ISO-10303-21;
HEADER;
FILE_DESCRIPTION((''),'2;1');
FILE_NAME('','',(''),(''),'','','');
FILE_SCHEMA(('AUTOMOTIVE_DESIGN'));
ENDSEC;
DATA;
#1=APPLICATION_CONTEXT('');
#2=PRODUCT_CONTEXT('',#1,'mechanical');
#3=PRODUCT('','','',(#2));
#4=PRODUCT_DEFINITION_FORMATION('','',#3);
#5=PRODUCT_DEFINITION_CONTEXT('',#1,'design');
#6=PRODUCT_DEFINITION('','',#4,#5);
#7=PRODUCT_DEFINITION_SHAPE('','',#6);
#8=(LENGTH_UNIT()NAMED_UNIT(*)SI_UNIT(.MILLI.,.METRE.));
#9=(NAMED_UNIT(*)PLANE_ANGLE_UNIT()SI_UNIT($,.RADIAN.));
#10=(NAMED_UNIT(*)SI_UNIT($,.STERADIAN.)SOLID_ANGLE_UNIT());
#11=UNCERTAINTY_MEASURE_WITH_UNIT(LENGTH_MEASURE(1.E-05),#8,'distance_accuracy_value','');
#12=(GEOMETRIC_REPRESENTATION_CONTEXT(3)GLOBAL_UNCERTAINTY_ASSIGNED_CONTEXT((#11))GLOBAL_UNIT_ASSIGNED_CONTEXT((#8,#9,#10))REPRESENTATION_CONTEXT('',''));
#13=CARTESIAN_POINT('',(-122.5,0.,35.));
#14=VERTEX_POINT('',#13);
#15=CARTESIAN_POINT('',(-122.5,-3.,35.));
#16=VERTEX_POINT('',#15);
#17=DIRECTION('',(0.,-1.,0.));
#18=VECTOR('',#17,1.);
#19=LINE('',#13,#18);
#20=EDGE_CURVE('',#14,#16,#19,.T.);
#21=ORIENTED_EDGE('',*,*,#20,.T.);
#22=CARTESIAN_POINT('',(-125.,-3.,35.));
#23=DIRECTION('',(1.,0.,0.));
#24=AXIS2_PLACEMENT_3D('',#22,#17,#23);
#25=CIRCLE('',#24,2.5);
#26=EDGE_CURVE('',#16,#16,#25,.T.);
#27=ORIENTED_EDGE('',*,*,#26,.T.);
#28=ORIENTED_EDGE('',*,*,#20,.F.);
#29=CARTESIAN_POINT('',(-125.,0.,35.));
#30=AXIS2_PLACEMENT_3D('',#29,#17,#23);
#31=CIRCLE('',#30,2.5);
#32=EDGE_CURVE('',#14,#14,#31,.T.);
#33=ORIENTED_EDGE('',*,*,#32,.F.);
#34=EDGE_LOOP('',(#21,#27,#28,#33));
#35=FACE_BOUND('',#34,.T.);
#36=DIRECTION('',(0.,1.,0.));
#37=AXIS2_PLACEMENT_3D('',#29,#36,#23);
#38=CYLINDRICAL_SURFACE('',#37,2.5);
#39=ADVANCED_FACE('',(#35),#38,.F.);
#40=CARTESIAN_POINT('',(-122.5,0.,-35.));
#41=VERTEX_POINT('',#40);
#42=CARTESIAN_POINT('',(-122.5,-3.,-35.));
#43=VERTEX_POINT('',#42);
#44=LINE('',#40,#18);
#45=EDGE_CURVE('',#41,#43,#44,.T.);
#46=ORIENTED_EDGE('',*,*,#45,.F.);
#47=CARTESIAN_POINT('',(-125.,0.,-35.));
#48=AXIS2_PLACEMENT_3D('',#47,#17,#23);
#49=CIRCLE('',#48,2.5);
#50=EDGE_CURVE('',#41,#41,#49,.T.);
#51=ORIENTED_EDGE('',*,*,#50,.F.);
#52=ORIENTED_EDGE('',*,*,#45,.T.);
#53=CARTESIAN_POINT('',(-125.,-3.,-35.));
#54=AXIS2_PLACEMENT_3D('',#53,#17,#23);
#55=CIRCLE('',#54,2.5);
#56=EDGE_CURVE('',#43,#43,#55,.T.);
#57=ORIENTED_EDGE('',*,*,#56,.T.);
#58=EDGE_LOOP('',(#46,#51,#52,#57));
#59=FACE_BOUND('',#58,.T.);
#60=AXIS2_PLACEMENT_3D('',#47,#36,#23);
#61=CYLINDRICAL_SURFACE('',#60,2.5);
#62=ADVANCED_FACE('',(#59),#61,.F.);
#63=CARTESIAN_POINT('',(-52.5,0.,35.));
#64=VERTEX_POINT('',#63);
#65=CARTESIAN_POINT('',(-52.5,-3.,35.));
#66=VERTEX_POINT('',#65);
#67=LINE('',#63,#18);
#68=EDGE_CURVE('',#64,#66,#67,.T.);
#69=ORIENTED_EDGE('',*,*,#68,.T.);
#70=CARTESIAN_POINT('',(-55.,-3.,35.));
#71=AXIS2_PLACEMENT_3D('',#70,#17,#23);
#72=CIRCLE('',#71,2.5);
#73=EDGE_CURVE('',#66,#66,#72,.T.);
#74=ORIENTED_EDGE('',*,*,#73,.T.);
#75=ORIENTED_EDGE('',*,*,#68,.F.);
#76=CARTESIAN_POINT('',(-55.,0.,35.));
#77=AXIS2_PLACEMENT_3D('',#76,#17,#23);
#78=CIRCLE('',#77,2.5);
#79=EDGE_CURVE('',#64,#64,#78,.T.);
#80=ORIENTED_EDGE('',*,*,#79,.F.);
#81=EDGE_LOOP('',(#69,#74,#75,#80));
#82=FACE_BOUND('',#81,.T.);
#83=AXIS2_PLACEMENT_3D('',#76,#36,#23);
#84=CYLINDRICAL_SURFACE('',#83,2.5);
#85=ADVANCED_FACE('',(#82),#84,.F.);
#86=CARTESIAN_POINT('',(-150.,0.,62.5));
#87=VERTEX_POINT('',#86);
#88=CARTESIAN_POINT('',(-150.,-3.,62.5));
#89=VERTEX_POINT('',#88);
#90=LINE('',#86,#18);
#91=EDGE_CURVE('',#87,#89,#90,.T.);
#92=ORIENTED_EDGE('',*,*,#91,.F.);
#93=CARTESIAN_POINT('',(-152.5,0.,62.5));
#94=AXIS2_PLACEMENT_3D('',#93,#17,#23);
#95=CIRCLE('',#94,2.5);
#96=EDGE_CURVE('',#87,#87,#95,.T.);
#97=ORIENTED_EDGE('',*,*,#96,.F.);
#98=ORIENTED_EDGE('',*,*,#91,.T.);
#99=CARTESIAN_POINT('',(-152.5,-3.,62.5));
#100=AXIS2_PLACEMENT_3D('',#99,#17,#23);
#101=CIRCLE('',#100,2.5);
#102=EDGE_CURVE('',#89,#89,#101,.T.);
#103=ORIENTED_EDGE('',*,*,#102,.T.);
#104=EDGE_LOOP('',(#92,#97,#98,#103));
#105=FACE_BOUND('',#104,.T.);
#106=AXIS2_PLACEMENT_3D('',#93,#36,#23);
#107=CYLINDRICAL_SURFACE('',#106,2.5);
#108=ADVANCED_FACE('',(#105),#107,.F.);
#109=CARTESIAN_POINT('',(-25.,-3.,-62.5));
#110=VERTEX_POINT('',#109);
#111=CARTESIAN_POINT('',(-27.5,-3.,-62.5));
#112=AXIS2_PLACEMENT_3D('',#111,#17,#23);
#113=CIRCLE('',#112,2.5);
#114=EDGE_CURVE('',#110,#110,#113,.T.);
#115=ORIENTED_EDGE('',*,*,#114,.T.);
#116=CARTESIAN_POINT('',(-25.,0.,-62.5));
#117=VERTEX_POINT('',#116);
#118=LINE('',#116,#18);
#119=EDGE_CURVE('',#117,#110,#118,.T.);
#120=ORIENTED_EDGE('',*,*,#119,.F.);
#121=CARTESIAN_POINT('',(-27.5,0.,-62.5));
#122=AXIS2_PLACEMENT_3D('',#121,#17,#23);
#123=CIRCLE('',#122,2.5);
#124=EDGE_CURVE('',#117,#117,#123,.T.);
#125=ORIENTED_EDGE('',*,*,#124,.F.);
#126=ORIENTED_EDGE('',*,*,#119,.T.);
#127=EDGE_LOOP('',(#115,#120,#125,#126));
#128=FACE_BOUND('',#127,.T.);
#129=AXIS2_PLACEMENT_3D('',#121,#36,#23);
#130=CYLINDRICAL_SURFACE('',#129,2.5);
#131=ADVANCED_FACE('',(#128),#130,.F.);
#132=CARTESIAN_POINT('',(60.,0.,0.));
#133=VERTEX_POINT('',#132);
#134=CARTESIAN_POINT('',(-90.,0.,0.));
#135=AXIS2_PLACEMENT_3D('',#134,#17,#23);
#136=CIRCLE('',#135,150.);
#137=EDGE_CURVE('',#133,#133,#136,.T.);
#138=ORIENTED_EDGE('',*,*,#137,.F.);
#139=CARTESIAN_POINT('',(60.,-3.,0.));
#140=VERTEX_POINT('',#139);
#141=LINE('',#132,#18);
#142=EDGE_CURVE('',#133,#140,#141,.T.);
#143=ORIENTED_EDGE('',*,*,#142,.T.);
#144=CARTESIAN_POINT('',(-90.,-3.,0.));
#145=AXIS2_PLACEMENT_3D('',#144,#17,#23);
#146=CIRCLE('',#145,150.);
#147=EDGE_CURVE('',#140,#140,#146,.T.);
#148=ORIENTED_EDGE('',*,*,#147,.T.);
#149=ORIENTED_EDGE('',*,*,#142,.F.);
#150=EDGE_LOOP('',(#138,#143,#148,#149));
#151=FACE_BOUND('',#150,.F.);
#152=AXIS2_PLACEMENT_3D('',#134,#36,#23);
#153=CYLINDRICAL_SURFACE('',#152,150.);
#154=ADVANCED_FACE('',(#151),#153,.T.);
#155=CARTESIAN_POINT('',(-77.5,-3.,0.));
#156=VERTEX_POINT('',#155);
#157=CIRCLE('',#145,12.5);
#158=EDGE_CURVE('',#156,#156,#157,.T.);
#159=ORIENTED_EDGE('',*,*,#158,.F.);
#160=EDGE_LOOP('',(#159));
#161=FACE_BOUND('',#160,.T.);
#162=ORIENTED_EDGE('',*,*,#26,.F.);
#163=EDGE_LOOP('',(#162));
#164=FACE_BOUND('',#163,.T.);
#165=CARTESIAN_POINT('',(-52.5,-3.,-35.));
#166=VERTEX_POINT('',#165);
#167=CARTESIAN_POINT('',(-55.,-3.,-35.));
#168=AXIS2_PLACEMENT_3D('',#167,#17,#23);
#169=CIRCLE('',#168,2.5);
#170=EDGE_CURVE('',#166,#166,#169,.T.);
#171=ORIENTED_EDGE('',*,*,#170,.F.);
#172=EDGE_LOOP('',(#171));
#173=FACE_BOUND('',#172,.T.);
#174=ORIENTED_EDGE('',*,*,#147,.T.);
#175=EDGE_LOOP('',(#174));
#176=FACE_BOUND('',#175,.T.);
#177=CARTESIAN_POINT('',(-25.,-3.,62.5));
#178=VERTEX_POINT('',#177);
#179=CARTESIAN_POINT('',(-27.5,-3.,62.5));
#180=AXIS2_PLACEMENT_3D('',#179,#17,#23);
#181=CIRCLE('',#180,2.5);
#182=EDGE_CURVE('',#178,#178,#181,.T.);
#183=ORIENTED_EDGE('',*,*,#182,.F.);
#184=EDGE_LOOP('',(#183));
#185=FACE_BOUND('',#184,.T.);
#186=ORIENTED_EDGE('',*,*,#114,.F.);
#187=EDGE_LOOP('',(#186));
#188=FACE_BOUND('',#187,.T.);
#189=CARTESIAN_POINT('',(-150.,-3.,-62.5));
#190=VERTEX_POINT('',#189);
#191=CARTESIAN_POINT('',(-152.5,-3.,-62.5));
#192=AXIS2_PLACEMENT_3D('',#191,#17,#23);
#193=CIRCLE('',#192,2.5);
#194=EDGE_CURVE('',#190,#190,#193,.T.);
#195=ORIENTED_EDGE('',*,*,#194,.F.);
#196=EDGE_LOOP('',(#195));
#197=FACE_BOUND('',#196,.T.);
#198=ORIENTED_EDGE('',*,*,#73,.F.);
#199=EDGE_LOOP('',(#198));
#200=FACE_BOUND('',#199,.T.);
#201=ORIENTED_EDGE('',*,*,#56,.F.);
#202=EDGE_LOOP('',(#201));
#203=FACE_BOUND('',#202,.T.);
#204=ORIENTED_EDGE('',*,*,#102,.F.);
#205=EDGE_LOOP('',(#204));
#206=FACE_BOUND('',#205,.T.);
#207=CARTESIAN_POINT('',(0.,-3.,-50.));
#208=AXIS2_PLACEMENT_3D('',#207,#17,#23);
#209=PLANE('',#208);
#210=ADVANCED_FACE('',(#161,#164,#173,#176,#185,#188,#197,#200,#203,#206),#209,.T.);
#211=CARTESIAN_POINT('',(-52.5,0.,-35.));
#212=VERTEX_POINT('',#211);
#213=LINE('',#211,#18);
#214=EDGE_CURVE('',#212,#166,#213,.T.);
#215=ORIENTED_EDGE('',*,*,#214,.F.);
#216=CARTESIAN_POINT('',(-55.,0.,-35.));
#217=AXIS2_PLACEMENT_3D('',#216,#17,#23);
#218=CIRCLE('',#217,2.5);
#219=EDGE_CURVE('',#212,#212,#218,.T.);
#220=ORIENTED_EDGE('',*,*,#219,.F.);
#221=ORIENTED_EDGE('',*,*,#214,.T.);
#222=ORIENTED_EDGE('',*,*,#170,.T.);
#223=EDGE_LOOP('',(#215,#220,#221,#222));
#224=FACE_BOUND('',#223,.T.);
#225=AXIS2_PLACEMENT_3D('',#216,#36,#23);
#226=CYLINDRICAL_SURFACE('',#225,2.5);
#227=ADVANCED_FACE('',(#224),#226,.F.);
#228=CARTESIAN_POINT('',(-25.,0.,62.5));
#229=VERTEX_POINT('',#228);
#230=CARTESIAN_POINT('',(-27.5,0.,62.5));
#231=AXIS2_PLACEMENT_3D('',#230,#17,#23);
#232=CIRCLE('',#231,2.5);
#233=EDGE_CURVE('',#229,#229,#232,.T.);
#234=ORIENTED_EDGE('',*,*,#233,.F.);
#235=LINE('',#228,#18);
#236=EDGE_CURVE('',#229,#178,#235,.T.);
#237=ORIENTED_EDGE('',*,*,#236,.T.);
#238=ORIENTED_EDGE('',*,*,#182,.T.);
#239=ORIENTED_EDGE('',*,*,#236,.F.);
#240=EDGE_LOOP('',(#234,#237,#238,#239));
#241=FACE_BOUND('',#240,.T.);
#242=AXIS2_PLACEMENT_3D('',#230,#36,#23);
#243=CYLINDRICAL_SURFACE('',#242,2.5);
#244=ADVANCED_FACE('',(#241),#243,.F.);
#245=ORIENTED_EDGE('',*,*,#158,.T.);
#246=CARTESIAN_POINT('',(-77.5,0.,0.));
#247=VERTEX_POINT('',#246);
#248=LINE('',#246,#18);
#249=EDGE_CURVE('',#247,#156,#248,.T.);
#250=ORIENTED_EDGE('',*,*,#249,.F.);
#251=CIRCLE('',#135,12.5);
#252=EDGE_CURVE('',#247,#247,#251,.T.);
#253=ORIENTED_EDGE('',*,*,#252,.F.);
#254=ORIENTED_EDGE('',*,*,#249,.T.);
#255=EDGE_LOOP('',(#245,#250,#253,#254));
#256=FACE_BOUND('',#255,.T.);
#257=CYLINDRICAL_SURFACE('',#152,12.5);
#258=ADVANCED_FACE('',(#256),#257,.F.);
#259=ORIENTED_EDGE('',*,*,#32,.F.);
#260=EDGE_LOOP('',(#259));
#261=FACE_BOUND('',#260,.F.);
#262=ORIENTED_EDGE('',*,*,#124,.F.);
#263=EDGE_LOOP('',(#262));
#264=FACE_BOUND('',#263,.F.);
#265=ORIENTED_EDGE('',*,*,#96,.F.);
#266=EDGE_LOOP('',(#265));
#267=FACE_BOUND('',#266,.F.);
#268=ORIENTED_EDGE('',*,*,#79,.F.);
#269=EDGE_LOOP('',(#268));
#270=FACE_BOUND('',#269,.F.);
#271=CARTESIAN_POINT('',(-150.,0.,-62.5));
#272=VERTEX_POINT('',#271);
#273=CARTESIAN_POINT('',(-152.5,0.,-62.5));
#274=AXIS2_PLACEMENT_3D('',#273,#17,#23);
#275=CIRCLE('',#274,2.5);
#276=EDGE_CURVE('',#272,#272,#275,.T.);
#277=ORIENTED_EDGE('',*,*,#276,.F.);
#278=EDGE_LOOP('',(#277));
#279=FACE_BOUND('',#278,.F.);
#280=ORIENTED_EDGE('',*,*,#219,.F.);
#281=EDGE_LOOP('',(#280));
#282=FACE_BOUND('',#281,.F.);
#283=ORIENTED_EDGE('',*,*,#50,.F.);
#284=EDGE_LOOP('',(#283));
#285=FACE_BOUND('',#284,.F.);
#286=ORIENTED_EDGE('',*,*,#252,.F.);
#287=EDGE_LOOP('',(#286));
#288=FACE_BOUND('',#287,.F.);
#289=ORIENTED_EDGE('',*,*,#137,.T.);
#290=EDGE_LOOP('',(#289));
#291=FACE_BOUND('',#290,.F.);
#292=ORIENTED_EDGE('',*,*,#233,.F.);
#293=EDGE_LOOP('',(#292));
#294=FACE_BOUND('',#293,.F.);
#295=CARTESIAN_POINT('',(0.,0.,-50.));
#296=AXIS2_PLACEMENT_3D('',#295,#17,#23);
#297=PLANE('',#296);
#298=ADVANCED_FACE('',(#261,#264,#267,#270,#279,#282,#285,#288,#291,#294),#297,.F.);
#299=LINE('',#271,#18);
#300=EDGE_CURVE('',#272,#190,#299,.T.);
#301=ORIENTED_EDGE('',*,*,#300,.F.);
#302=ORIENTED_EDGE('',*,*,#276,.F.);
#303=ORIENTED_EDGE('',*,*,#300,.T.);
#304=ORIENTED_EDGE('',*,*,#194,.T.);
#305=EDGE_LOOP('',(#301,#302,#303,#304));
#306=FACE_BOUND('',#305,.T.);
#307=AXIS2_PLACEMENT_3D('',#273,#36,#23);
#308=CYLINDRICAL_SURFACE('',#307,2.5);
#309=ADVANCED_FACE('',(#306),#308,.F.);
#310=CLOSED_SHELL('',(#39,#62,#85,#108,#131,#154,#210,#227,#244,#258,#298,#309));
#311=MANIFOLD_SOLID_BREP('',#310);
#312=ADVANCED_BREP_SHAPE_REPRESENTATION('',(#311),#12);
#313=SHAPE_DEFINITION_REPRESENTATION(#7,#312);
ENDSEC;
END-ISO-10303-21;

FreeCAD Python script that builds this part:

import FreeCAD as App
import Part
import Sketcher

V = App.Vector
Q = App.Units.Quantity

doc = App.newDocument("Part")
body = doc.addObject("PartDesign::Body", "Body")

# Sketch on XZ plane
sketch1 = body.newObject("Sketcher::SketchObject", "Sketch")
sketch1.AttachmentSupport = (doc.getObject("XZ_Plane"), [""])
sketch1.MapMode = "FlatFace"
sketch1.addGeometry(Part.Circle(V(-90, 0, 0), V(0, 0, 1), 150), False)
sketch1.addGeometry(Part.Circle(V(-152.5, -62.5, 0), V(0, 0, 1), 2.5), False)
sketch1.addGeometry(Part.Circle(V(-125, -35, 0), V(0, 0, 1), 2.5), False)
sketch1.addGeometry(Part.Circle(V(-27.5, -62.5, 0), V(0, 0, 1), 2.5), False)
sketch1.addGeometry(Part.Circle(V(-55, -35, 0), V(0, 0, 1), 2.5), False)
sketch1.addGeometry(Part.Circle(V(-125, 35, 0), V(0, 0, 1), 2.5), False)
sketch1.addGeometry(Part.Circle(V(-152.5, 62.5, 0), V(0, 0, 1), 2.5), False)
sketch1.addGeometry(Part.Circle(V(-90, 0, 0), V(0, 0, 1), 12.5), False)
sketch1.addGeometry(Part.Circle(V(-55, 35, 0), V(0, 0, 1), 2.5), False)
sketch1.addGeometry(Part.Circle(V(-27.5, 62.5, 0), V(0, 0, 1), 2.5), False)
sketch1.addConstraint(Sketcher.Constraint("Coincident", 7, 3, 0, 3))
sketch1.addConstraint(Sketcher.Constraint("Equal", 1, 2))
sketch1.addConstraint(Sketcher.Constraint("Equal", 2, 3))
sketch1.addConstraint(Sketcher.Constraint("Equal", 3, 4))
sketch1.addConstraint(Sketcher.Constraint("Equal", 4, 5))
sketch1.addConstraint(Sketcher.Constraint("Equal", 5, 6))
sketch1.addConstraint(Sketcher.Constraint("Equal", 6, 8))
sketch1.addConstraint(Sketcher.Constraint("Equal", 8, 9))
sketch1.addConstraint(Sketcher.Constraint("Symmetric", 2, 3, 5, 3, -1))
sketch1.addConstraint(Sketcher.Constraint("Symmetric", 1, 3, 6, 3, -1))
sketch1.addConstraint(Sketcher.Constraint("Symmetric", 4, 3, 8, 3, -1))
sketch1.addConstraint(Sketcher.Constraint("Symmetric", 3, 3, 9, 3, -1))
sketch1.addConstraint(Sketcher.Constraint("PointOnObject", 0, 3, -1))
sketch1.addConstraint(Sketcher.Constraint("Horizontal", 1, 3, 3, 3))
sketch1.addConstraint(Sketcher.Constraint("Horizontal", 2, 3, 4, 3))
sketch1.addConstraint(Sketcher.Constraint("Diameter", 0, Q("300 mm")))
sketch1.addConstraint(Sketcher.Constraint("Diameter", 1, Q("5 mm")))
sketch1.addConstraint(Sketcher.Constraint("Diameter", 7, Q("25 mm")))
sketch1.addConstraint(Sketcher.Constraint("DistanceX", 2, 3, -1, 1, Q("125 mm")))
sketch1.addConstraint(Sketcher.Constraint("DistanceX", 1, 3, 3, 3, Q("125 mm")))
sketch1.addConstraint(Sketcher.Constraint("DistanceX", 2, 3, 4, 3, Q("70 mm")))
sketch1.addConstraint(Sketcher.Constraint("DistanceY", 2, 3, 5, 3, Q("70 mm")))
sketch1.addConstraint(Sketcher.Constraint("DistanceY", 1, 3, 6, 3, Q("125 mm")))
sketch1.addConstraint(Sketcher.Constraint("DistanceX", 0, 3, -1, 1, Q("90 mm")))
sketch1.addConstraint(Sketcher.Constraint("DistanceX", 1, 3, -1, 1, Q("152.5 mm")))
pad1 = body.newObject("PartDesign::Pad", "Pad")
pad1.Profile = sketch1
pad1.Length = 3

doc.recompute()
